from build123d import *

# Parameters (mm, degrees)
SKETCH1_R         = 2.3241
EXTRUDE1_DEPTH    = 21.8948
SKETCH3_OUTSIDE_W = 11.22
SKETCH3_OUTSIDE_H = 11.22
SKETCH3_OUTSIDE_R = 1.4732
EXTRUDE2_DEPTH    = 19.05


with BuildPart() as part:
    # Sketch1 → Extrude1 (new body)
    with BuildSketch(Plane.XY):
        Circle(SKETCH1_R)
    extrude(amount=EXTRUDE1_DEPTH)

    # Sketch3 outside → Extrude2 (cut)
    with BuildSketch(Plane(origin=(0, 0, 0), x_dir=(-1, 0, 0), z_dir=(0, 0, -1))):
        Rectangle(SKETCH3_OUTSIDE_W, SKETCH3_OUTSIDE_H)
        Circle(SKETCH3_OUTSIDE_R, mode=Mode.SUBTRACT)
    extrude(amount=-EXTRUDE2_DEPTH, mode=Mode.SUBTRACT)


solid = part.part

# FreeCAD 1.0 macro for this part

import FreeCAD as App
import Part
import Sketcher
from FreeCAD import Vector
Q = App.Units.Quantity

doc = App.newDocument("Part")
body = doc.addObject("PartDesign::Body", "Body")

# Sketch on XY plane
sketch1 = body.newObject("Sketcher::SketchObject", "Sketch")
sketch1.AttachmentSupport = (doc.getObject("XY_Plane"), [""])
sketch1.MapMode = "FlatFace"
sketch1.addGeometry(Part.Circle(Vector(0, 0, 0), Vector(0, 0, 1), 2.3241), False)
sketch1.addConstraint([
    Sketcher.Constraint("Coincident", 0, 3, -1, 1),
    Sketcher.Constraint("Diameter", 0, Q("0.183 in")),
])
pad1 = body.newObject("PartDesign::Pad", "Pad")
pad1.Profile = sketch1
pad1.Length = Q("0.862 in")

# Sketch on XY plane
sketch2 = body.newObject("Sketcher::SketchObject", "Sketch001")
sketch2.AttachmentSupport = (doc.getObject("XY_Plane"), [""])
sketch2.MapMode = "FlatFace"
sketch2.addGeometry([
    Part.LineSegment(Vector(5.61, 5.61, 0), Vector(5.61, -5.61, 0)),  # 0
    Part.LineSegment(Vector(5.61, -5.61, 0), Vector(-5.61, -5.61, 0)),  # 1
    Part.LineSegment(Vector(-5.61, -5.61, 0), Vector(-5.61, 5.61, 0)),  # 2
    Part.LineSegment(Vector(-5.61, 5.61, 0), Vector(5.61, 5.61, 0)),  # 3
    Part.Circle(Vector(0, 0, 0), Vector(0, 0, 1), 1.4732),  # 4
], False)
sketch2.addConstraint([
    Sketcher.Constraint("Coincident", 0, 2, 1, 1),
    Sketcher.Constraint("Coincident", 1, 2, 2, 1),
    Sketcher.Constraint("Coincident", 2, 2, 3, 1),
    Sketcher.Constraint("Coincident", 3, 2, 0, 1),
    Sketcher.Constraint("Vertical", 0),
    Sketcher.Constraint("Horizontal", 1),
    Sketcher.Constraint("Vertical", 2),
    Sketcher.Constraint("Horizontal", 3),
    Sketcher.Constraint("Coincident", 4, 3, -1, 1),
    Sketcher.Constraint("Symmetric", 0, 2, 2, 2, -1, 1),
    Sketcher.Constraint("Equal", 3, 0),
    Sketcher.Constraint("Diameter", 4, Q("0.116 in")),
    Sketcher.Constraint("DistanceX", 1, 2, 1, 1, 11.22),
])
pocket1 = body.newObject("PartDesign::Pocket", "Pocket")
pocket1.Profile = sketch2
pocket1.Length = Q("0.75 in")
pocket1.Reversed = True

doc.recompute()
